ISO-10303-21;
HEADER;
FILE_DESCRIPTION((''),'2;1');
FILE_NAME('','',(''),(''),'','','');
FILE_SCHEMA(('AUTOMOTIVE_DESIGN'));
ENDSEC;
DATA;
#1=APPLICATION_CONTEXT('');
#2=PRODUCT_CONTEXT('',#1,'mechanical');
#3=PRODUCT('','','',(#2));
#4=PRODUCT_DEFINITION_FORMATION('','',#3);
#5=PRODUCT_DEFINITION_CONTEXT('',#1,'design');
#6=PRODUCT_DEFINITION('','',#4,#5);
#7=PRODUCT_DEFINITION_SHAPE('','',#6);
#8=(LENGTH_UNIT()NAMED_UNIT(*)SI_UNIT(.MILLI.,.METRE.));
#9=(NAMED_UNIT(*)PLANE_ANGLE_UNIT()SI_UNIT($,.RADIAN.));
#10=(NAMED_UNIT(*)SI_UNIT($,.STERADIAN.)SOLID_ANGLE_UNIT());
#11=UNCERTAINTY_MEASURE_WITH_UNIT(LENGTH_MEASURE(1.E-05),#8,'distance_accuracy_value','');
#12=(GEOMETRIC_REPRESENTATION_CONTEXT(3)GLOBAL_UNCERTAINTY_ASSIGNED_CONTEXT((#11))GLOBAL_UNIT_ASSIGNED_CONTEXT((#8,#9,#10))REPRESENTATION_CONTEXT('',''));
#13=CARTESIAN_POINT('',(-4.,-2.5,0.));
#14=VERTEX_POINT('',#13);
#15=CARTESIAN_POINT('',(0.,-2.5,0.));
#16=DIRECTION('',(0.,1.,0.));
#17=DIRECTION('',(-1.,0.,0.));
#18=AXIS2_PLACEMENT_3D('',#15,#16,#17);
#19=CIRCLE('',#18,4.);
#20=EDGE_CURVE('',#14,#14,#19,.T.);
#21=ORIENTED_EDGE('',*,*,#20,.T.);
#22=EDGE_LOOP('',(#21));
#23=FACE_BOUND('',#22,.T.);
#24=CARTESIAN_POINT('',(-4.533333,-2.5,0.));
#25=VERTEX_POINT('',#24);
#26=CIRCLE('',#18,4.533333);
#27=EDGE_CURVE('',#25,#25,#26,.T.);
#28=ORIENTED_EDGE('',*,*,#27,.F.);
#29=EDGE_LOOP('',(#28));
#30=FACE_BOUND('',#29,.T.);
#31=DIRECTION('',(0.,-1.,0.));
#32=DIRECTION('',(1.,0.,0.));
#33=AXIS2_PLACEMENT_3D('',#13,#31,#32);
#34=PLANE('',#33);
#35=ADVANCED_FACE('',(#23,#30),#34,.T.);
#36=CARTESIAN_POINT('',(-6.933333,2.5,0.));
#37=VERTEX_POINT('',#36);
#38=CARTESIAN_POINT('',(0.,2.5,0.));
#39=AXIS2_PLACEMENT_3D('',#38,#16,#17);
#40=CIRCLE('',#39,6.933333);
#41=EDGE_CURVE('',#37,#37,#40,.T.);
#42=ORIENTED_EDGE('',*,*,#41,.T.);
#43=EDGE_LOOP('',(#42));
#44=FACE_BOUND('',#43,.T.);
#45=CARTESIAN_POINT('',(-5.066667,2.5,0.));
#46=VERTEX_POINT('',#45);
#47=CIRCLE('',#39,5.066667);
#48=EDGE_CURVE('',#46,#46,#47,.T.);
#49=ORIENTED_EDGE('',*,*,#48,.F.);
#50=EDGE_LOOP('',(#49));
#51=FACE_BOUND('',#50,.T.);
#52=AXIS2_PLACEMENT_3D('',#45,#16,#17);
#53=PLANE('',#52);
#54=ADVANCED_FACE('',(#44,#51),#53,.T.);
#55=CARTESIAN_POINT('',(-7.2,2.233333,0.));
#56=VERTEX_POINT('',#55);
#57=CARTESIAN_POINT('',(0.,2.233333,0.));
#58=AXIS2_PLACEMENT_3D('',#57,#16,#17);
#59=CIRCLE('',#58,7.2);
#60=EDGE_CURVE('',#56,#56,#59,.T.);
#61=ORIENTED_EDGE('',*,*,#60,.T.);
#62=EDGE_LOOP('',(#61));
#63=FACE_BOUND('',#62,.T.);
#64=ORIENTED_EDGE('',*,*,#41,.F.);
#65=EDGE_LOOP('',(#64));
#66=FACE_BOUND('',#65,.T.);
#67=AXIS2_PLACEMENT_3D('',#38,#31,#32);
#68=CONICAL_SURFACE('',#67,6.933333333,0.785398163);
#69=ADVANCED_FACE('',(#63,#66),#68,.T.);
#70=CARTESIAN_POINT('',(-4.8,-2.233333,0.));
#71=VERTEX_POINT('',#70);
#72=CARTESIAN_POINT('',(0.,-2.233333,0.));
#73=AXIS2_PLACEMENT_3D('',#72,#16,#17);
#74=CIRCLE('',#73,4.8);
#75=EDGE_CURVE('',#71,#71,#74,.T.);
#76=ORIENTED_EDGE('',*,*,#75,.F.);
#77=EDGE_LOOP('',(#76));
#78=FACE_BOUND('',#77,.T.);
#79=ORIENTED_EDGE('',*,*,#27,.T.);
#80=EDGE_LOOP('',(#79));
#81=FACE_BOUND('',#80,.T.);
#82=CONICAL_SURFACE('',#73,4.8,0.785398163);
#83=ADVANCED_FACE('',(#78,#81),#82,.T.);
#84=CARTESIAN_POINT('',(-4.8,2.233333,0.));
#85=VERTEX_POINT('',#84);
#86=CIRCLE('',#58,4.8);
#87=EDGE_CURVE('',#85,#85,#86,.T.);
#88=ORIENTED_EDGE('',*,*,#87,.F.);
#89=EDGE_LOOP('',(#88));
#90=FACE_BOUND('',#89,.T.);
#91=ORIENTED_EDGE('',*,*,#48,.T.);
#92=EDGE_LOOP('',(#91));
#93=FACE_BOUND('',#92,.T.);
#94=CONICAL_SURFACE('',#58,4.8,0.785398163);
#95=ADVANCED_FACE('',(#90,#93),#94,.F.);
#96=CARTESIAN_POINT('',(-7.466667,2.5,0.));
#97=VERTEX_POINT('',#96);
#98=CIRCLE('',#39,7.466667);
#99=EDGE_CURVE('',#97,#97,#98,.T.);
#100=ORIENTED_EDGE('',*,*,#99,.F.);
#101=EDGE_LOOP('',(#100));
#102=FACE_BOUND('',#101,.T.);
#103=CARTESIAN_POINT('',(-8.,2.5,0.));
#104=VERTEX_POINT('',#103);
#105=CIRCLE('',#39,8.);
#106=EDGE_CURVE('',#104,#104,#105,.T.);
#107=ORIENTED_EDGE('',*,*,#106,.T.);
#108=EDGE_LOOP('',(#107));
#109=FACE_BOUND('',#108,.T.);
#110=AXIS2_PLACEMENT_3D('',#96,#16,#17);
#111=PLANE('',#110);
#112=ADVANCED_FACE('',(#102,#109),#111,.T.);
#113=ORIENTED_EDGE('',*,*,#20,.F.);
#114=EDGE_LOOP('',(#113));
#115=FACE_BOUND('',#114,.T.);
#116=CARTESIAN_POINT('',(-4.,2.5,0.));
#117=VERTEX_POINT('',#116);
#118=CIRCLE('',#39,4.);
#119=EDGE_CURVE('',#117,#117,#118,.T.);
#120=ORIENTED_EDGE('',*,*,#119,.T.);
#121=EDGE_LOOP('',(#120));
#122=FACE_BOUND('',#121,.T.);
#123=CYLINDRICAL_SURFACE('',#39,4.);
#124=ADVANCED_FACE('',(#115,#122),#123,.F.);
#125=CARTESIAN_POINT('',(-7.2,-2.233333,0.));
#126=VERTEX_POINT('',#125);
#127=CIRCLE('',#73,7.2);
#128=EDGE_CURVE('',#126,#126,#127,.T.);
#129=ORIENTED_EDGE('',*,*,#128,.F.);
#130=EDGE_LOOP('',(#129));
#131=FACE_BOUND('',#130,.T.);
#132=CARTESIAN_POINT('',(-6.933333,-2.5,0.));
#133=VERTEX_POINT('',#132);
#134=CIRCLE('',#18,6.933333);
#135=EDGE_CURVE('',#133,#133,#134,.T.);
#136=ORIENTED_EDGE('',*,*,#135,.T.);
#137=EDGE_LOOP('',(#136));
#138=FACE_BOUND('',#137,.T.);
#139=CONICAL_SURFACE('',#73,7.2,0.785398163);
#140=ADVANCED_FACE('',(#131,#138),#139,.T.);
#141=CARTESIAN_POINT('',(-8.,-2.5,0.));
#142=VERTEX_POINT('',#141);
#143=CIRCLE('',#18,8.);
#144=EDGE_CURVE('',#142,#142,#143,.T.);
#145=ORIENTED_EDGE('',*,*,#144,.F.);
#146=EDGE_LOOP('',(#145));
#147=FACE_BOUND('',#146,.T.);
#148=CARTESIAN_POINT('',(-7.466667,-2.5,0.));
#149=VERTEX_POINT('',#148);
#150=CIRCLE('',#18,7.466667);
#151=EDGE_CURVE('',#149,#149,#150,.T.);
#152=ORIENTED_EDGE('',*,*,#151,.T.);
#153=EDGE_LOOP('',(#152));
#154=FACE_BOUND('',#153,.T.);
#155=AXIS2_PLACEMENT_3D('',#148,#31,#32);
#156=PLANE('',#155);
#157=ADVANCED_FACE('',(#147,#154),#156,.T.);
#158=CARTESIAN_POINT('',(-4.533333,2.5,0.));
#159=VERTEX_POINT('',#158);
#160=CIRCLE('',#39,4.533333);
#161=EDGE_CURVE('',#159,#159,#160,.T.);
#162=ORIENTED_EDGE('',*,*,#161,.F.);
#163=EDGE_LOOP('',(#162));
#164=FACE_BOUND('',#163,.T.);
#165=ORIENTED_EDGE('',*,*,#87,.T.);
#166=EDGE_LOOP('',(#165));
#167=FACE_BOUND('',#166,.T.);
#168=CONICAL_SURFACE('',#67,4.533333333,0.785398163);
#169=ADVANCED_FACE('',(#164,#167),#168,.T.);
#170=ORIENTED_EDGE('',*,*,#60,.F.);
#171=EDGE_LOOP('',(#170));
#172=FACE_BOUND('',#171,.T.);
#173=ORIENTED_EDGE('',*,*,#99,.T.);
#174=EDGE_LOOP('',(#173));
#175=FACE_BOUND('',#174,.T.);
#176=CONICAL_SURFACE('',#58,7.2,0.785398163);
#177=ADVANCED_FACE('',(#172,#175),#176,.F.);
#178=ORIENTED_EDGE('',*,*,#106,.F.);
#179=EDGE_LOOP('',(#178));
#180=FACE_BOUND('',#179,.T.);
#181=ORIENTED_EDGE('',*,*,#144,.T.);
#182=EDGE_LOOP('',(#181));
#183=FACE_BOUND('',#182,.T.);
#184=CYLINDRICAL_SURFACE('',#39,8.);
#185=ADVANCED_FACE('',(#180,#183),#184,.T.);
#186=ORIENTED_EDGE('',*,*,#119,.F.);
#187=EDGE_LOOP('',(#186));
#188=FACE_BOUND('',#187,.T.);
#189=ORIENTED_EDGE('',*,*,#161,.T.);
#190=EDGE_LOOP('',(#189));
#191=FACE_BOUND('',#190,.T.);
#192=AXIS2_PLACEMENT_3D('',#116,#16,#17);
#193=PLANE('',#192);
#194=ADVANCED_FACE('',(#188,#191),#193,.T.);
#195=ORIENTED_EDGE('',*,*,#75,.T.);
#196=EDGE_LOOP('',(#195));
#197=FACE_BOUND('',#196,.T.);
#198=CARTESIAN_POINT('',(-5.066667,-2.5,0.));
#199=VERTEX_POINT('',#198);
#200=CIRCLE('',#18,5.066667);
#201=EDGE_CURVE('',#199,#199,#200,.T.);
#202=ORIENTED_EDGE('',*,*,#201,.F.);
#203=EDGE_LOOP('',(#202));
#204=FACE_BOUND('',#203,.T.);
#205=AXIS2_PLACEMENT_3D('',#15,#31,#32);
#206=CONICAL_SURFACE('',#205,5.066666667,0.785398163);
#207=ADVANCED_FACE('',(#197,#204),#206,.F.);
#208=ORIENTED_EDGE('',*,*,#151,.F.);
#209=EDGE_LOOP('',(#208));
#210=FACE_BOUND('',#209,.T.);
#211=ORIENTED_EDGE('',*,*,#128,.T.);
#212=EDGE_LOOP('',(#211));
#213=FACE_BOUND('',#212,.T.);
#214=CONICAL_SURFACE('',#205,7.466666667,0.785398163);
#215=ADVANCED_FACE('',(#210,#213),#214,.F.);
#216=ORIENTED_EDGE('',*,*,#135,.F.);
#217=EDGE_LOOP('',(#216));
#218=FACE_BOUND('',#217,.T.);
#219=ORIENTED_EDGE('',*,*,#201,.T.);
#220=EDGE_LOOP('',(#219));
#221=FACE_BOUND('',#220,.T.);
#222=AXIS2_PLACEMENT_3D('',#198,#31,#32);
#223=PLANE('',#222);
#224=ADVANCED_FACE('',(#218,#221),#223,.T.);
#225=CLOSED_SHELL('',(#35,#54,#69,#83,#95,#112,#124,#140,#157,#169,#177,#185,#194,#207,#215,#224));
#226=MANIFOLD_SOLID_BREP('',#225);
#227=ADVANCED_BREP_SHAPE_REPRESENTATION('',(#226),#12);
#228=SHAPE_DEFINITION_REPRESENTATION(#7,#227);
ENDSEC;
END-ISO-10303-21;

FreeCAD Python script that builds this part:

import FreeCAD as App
import Part
import Sketcher

V = App.Vector


def add_polygon(sketch, points):
    """Adds a closed chain of lines whose ends are joined by coincident constraints."""
    first, n = sketch.GeometryCount, len(points)
    for a, b in zip(points, points[1:] + points[:1]):
        sketch.addGeometry(Part.LineSegment(App.Vector(*a, 0), App.Vector(*b, 0)), False)
    for i in range(n):
        sketch.addConstraint(Sketcher.Constraint("Coincident", first + i, 2, first + (i + 1) % n, 1))

doc = App.newDocument("Part")
body = doc.addObject("PartDesign::Body", "Body")

# Sketch on XY plane
sketch1 = body.newObject("Sketcher::SketchObject", "Sketch")
sketch1.AttachmentSupport = (doc.getObject("XY_Plane"), [""])
sketch1.MapMode = "FlatFace"
add_polygon(sketch1, [(-4, 2.5), (-4.53, 2.5), (-4.8, 2.23), (-5.07, 2.5), (-6.93, 2.5), (-7.2, 2.23), (-7.47, 2.5), (-8, 2.5), (-8, -2.5), (-7.47, -2.5), (-7.2, -2.23), (-6.93, -2.5), (-5.07, -2.5), (-4.8, -2.23), (-4.53, -2.5), (-4, -2.5)])  # lines 0-15
sketch1.addConstraint([
    Sketcher.Constraint("Horizontal", 0),
    Sketcher.Constraint("Horizontal", 3),
    Sketcher.Constraint("Horizontal", 6),
    Sketcher.Constraint("Vertical", 7),
    Sketcher.Constraint("Horizontal", 8),
    Sketcher.Constraint("Horizontal", 11),
    Sketcher.Constraint("Horizontal", 14),
    Sketcher.Constraint("Vertical", 15),
    Sketcher.Constraint("Symmetric", 5, 2, 8, 2, -1),
    Sketcher.Constraint("Symmetric", 4, 2, 9, 2, -1),
    Sketcher.Constraint("Symmetric", 3, 2, 10, 2, -1),
    Sketcher.Constraint("Symmetric", 1, 2, 12, 2, -1),
    Sketcher.Constraint("Symmetric", 0, 2, 13, 2, -1),
    Sketcher.Constraint("Perpendicular", 1, 2),
    Sketcher.Constraint("Perpendicular", 2, 4),
    Sketcher.Constraint("Perpendicular", 4, 5),
    Sketcher.Constraint("Perpendicular", 5, 9),
    Sketcher.Constraint("Perpendicular", 10, 12),
    Sketcher.Constraint("Horizontal", 0, 2, 2, 2),
    Sketcher.Constraint("Horizontal", 1, 2, 4, 2),
    Sketcher.Constraint("Horizontal", 3, 2, 5, 2),
    Sketcher.Constraint("Equal", 0, 6),
    Sketcher.Constraint("DistanceY", 7, 2, 7, 1, 5.0),
    Sketcher.Constraint("DistanceX", 6, 2, -1, 1, 8.0),
    Sketcher.Constraint("DistanceX", 14, 2, -1, 1, 4.0),
    Sketcher.Constraint("DistanceX", 1, 2, -1, 1, 4.8),
    Sketcher.Constraint("DistanceX", 0, 2, 0, 1, 0.533333),
])
revolution = body.newObject("PartDesign::Revolution", "Revolution")
revolution.Profile = sketch1
revolution.ReferenceAxis = (sketch1, ["V_Axis"])
revolution.Angle = 360

doc.recompute()
